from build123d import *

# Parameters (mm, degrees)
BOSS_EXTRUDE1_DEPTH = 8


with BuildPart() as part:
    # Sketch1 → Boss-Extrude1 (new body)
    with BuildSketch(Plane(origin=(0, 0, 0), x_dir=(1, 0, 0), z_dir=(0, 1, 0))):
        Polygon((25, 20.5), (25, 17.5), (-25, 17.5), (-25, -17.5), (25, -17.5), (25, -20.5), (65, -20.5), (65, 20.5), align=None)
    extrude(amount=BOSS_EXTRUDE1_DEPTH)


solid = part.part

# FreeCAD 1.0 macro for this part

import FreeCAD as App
import Part
import Sketcher

V = App.Vector

doc = App.newDocument("Part")
body = doc.addObject("PartDesign::Body", "Body")

# Sketch on XZ plane
sketch1 = body.newObject("Sketcher::SketchObject", "Sketch")
sketch1.AttachmentSupport = (doc.getObject("XZ_Plane"), [""])
sketch1.MapMode = "FlatFace"
sketch1.addGeometry(Part.LineSegment(V(25, -20.5, 0), V(25, -17.5, 0)), False)
sketch1.addGeometry(Part.LineSegment(V(25, -17.5, 0), V(-25, -17.5, 0)), False)
sketch1.addGeometry(Part.LineSegment(V(-25, -17.5, 0), V(-25, 17.5, 0)), False)
sketch1.addGeometry(Part.LineSegment(V(-25, 17.5, 0), V(25, 17.5, 0)), False)
sketch1.addGeometry(Part.LineSegment(V(25, 17.5, 0), V(25, 20.5, 0)), False)
sketch1.addGeometry(Part.LineSegment(V(25, 20.5, 0), V(65, 20.5, 0)), False)
sketch1.addGeometry(Part.LineSegment(V(65, 20.5, 0), V(65, -20.5, 0)), False)
sketch1.addGeometry(Part.LineSegment(V(65, -20.5, 0), V(25, -20.5, 0)), False)
sketch1.addConstraint(Sketcher.Constraint("Coincident", 0, 2, 1, 1))
sketch1.addConstraint(Sketcher.Constraint("Coincident", 1, 2, 2, 1))
sketch1.addConstraint(Sketcher.Constraint("Coincident", 2, 2, 3, 1))
sketch1.addConstraint(Sketcher.Constraint("Coincident", 3, 2, 4, 1))
sketch1.addConstraint(Sketcher.Constraint("Coincident", 4, 2, 5, 1))
sketch1.addConstraint(Sketcher.Constraint("Coincident", 5, 2, 6, 1))
sketch1.addConstraint(Sketcher.Constraint("Coincident", 6, 2, 7, 1))
sketch1.addConstraint(Sketcher.Constraint("Coincident", 7, 2, 0, 1))
sketch1.addConstraint(Sketcher.Constraint("Vertical", 0))
sketch1.addConstraint(Sketcher.Constraint("Horizontal", 1))
sketch1.addConstraint(Sketcher.Constraint("Vertical", 2))
sketch1.addConstraint(Sketcher.Constraint("Horizontal", 3))
sketch1.addConstraint(Sketcher.Constraint("Vertical", 4))
sketch1.addConstraint(Sketcher.Constraint("Horizontal", 5))
sketch1.addConstraint(Sketcher.Constraint("Vertical", 6))
sketch1.addConstraint(Sketcher.Constraint("Horizontal", 7))
sketch1.addConstraint(Sketcher.Constraint("Symmetric", 0, 2, 2, 2, -1, 1))
sketch1.addConstraint(Sketcher.Constraint("Symmetric", 4, 2, 7, 2, -1))
sketch1.addConstraint(Sketcher.Constraint("DistanceX", 1, 2, 1, 1, 50.0))
sketch1.addConstraint(Sketcher.Constraint("DistanceX", 5, 1, 5, 2, 40.0))
sketch1.addConstraint(Sketcher.Constraint("DistanceY", 0, 1, 0, 2, 3.0))
sketch1.addConstraint(Sketcher.Constraint("DistanceY", 2, 1, 2, 2, 35.0))
pad1 = body.newObject("PartDesign::Pad", "Pad")
pad1.Profile = sketch1
pad1.Length = 8
pad1.Reversed = True

doc.recompute()
